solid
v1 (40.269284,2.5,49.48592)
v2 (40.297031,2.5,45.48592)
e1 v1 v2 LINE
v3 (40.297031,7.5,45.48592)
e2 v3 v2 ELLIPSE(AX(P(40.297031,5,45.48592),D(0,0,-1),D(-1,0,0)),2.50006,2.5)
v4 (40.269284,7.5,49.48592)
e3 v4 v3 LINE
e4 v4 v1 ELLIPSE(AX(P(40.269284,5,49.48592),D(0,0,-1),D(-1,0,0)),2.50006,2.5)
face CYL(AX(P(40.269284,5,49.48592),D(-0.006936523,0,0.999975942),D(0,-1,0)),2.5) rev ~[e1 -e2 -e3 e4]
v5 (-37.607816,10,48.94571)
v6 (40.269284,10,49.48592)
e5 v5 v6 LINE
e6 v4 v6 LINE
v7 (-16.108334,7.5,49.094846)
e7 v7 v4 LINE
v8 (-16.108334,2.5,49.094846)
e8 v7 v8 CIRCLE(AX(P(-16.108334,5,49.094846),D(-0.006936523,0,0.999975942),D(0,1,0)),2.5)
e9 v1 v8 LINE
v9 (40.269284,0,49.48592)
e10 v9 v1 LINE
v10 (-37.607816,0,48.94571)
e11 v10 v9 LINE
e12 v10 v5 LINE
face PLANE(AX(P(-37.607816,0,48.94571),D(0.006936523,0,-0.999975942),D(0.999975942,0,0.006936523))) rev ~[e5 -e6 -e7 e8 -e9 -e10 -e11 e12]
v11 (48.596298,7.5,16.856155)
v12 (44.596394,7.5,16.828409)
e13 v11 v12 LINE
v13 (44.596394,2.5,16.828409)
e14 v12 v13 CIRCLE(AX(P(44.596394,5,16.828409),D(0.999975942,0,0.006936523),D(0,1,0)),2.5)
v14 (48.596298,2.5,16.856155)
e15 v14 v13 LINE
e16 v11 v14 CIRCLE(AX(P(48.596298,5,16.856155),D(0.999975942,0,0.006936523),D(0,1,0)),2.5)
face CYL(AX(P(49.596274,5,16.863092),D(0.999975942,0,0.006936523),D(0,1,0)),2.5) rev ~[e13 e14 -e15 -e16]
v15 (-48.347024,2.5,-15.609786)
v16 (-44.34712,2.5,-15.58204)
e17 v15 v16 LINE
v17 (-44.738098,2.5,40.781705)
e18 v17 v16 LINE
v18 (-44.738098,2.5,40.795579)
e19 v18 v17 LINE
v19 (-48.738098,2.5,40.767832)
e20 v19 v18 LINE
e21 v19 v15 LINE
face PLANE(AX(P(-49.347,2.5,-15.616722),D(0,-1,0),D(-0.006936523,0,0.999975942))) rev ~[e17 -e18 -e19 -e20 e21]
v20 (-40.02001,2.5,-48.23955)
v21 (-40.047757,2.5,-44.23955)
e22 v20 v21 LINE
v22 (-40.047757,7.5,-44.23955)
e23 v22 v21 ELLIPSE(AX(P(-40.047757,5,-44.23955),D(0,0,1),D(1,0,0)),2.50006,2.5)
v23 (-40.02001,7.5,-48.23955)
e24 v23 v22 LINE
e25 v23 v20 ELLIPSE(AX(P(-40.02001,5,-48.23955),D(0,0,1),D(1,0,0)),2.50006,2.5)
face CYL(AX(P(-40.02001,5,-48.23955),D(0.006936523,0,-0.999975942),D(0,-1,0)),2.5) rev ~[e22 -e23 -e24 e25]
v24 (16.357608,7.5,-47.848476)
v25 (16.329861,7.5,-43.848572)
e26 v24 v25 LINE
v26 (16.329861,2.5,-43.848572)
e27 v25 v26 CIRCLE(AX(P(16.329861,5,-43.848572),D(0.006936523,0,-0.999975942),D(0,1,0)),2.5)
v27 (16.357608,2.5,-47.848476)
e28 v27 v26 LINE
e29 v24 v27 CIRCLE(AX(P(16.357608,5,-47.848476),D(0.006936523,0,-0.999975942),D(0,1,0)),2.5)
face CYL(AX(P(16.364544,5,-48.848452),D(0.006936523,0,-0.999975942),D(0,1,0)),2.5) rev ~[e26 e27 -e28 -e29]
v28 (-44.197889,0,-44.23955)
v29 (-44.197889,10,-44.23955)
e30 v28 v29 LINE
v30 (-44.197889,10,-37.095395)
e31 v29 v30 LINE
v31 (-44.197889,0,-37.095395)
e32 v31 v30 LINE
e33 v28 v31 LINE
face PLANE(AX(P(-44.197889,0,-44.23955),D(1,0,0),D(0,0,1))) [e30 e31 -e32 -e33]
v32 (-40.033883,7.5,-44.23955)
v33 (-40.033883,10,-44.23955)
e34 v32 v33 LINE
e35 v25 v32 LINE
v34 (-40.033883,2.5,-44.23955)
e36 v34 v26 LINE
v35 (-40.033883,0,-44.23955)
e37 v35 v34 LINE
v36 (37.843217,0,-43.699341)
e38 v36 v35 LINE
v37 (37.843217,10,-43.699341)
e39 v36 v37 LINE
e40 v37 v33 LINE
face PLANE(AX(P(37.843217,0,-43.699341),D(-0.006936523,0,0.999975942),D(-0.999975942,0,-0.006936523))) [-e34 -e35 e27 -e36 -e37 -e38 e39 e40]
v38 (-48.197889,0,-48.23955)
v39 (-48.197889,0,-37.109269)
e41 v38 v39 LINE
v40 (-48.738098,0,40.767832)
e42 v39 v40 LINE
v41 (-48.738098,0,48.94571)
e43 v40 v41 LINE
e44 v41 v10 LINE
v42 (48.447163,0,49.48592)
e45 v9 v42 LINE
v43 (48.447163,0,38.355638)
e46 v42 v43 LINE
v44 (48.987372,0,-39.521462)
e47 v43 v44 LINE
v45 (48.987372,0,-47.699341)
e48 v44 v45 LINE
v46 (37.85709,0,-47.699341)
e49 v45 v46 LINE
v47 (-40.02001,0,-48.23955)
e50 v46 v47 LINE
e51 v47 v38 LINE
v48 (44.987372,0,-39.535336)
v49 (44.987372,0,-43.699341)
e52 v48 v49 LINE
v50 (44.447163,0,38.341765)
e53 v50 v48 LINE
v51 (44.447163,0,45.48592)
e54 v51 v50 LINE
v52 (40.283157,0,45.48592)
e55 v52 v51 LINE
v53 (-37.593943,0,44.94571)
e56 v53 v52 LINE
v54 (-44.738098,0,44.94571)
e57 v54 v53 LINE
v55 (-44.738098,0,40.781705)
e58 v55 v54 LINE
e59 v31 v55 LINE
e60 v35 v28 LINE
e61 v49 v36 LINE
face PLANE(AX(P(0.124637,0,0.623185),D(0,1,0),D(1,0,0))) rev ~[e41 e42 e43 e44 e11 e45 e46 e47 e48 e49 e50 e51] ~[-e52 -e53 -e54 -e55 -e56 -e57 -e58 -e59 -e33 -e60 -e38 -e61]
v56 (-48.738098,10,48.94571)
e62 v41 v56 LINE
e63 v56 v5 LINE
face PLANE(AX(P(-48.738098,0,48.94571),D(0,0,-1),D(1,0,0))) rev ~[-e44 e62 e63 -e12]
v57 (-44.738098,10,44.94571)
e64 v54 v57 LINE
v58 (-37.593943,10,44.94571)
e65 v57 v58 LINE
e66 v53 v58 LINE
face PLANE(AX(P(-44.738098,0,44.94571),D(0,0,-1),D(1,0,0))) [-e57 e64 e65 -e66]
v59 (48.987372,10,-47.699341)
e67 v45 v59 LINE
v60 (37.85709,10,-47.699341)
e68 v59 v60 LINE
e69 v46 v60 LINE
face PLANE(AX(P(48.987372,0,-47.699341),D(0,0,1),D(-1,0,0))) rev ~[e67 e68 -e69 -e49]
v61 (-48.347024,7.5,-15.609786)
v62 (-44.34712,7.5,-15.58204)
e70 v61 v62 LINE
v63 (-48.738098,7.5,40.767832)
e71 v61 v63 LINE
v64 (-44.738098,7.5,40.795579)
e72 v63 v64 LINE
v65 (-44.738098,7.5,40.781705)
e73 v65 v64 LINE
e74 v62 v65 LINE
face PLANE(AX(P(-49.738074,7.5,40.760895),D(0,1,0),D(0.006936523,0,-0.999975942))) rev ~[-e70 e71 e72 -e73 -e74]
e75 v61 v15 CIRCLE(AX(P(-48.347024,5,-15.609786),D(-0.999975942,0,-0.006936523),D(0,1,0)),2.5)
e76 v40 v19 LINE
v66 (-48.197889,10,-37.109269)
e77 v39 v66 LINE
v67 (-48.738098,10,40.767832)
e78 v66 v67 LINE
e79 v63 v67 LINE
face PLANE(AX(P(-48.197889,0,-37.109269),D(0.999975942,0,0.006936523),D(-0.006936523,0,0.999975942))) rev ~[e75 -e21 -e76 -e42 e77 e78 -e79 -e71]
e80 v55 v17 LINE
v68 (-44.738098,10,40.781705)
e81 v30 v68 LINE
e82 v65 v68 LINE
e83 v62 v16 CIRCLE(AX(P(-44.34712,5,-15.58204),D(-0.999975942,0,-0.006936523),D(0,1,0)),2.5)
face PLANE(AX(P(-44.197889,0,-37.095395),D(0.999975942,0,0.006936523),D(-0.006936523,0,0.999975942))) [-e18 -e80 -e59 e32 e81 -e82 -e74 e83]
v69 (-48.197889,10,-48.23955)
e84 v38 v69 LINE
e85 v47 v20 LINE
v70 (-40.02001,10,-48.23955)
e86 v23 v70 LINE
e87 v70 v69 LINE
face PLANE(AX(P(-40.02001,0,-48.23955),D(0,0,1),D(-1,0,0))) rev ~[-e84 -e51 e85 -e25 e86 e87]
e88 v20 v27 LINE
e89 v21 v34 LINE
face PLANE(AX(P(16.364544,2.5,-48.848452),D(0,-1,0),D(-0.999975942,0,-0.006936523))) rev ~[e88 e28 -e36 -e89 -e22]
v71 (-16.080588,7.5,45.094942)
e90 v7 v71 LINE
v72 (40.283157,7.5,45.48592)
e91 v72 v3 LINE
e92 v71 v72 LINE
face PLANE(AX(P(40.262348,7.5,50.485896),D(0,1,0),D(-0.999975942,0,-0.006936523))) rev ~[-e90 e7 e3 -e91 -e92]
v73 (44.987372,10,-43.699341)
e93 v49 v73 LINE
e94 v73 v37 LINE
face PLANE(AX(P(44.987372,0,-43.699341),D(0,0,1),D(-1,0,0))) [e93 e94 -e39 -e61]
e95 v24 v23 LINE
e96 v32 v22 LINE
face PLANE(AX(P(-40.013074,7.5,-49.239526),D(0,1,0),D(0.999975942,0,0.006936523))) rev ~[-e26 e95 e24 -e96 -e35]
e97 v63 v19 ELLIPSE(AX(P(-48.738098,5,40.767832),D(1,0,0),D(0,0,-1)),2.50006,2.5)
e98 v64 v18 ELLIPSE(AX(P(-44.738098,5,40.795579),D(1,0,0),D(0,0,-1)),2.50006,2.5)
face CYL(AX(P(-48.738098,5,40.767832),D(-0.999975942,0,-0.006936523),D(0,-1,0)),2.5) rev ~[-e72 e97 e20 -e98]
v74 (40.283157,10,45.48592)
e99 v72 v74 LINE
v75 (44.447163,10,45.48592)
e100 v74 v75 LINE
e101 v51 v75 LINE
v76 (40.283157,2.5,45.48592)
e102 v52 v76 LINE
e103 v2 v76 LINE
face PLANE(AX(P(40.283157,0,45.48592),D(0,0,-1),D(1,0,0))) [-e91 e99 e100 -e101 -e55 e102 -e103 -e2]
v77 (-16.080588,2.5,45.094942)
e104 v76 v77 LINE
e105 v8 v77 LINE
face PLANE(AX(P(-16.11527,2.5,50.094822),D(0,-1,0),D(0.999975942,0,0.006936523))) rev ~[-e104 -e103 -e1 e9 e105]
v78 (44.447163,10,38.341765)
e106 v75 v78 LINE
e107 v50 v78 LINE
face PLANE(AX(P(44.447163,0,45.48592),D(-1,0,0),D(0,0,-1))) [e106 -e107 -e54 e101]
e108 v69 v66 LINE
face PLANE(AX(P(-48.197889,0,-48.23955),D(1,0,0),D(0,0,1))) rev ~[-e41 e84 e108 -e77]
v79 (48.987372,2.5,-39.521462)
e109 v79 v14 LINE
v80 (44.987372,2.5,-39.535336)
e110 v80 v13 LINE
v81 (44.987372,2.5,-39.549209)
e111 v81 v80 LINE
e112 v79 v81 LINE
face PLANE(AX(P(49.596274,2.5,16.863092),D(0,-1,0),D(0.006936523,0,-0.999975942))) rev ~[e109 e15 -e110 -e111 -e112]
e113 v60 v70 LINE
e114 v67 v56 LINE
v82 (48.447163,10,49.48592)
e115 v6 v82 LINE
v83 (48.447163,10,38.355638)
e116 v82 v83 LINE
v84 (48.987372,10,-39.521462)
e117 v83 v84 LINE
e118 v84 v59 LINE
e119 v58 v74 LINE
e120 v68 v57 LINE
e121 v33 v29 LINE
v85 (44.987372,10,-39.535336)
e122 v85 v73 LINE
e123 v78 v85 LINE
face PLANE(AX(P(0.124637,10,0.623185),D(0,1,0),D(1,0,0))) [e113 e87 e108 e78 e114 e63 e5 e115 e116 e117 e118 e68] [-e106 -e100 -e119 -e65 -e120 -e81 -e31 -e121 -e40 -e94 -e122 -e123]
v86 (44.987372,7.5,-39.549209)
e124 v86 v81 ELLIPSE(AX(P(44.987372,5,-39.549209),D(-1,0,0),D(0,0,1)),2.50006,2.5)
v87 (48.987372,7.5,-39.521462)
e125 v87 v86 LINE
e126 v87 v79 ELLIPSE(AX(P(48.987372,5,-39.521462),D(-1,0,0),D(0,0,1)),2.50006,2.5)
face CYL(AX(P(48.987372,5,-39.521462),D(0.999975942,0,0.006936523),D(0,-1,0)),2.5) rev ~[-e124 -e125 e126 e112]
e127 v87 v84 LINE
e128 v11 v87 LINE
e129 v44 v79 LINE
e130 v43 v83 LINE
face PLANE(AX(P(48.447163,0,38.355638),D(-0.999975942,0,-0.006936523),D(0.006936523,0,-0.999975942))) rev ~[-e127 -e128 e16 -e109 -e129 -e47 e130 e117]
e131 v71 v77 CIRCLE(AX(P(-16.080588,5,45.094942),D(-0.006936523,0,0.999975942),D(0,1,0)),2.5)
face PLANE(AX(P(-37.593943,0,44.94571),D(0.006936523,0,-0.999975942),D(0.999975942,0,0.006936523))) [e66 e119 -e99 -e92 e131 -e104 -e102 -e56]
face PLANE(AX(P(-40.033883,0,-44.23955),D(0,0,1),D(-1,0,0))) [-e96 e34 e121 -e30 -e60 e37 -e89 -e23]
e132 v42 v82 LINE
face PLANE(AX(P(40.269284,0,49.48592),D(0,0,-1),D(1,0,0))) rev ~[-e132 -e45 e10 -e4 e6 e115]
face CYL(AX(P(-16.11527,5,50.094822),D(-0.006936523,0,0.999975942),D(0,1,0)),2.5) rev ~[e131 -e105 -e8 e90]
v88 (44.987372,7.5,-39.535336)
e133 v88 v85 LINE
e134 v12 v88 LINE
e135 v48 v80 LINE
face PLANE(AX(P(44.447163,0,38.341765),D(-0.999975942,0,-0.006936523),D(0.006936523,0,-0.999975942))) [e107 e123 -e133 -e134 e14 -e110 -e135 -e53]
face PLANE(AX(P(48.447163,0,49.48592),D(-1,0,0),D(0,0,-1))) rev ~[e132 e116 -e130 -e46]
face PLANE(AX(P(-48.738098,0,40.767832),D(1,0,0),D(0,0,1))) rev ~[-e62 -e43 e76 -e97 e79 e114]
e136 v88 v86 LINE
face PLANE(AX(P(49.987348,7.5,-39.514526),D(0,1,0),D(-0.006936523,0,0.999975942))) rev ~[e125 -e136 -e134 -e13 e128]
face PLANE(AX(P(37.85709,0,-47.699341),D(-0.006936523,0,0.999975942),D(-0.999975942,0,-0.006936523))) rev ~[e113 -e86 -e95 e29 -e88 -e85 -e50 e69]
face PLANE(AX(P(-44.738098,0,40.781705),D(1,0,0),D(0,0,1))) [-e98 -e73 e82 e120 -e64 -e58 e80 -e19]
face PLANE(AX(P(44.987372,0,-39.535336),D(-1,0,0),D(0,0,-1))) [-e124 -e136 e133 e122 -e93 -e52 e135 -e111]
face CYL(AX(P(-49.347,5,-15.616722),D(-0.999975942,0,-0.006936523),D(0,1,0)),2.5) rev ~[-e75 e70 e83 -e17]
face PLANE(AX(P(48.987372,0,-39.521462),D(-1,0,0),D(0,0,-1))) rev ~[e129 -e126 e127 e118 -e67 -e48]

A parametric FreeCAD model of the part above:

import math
import FreeCAD as App
import Part
import Sketcher

doc = App.newDocument("Part")
params = doc.addObject("Spreadsheet::Sheet", "Params")
for row, (alias, value) in enumerate([
    ("pad1_length", "10 mm"),
    ("sketch2_diameter", "5 mm"),
    ("pocket1_length", "10 mm"),
    ("sketch3_radius", "2.5 mm"),
    ("pocket2_length", "6 mm"),
], start=1):
    params.set(f"A{row}", alias)
    params.set(f"B{row}", "=" + value)
    params.setAlias(f"B{row}", alias)

body = doc.addObject("PartDesign::Body", "Body")

# Sketch on XZ plane
sketch1 = body.newObject("Sketcher::SketchObject", "Sketch")
sketch1.AttachmentSupport = (doc.getObject("XZ_Plane"), [""])
sketch1.MapMode = "FlatFace"
sketch1.addGeometry(Part.LineSegment(App.Vector(-48.2, -37.1, 0), App.Vector(-48.7, 40.8, 0)), False)
sketch1.addGeometry(Part.LineSegment(App.Vector(-48.7, 40.8, 0), App.Vector(-48.7, 48.9, 0)), False)
sketch1.addGeometry(Part.LineSegment(App.Vector(-48.7, 48.9, 0), App.Vector(-37.6, 48.9, 0)), False)
sketch1.addGeometry(Part.LineSegment(App.Vector(-37.6, 48.9, 0), App.Vector(40.3, 49.5, 0)), False)
sketch1.addGeometry(Part.LineSegment(App.Vector(40.3, 49.5, 0), App.Vector(48.4, 49.5, 0)), False)
sketch1.addGeometry(Part.LineSegment(App.Vector(48.4, 49.5, 0), App.Vector(48.4, 38.4, 0)), False)
sketch1.addGeometry(Part.LineSegment(App.Vector(48.4, 38.4, 0), App.Vector(49, -39.5, 0)), False)
sketch1.addGeometry(Part.LineSegment(App.Vector(49, -39.5, 0), App.Vector(49, -47.7, 0)), False)
sketch1.addGeometry(Part.LineSegment(App.Vector(49, -47.7, 0), App.Vector(37.9, -47.7, 0)), False)
sketch1.addGeometry(Part.LineSegment(App.Vector(37.9, -47.7, 0), App.Vector(-40, -48.2, 0)), False)
sketch1.addGeometry(Part.LineSegment(App.Vector(-40, -48.2, 0), App.Vector(-48.2, -48.2, 0)), False)
sketch1.addGeometry(Part.LineSegment(App.Vector(-48.2, -48.2, 0), App.Vector(-48.2, -37.1, 0)), False)
sketch1.addGeometry(Part.LineSegment(App.Vector(-44.2, -44.2, 0), App.Vector(-40, -44.2, 0)), False)
sketch1.addGeometry(Part.LineSegment(App.Vector(-40, -44.2, 0), App.Vector(37.8, -43.7, 0)), False)
sketch1.addGeometry(Part.LineSegment(App.Vector(37.8, -43.7, 0), App.Vector(45, -43.7, 0)), False)
sketch1.addGeometry(Part.LineSegment(App.Vector(45, -43.7, 0), App.Vector(45, -39.5, 0)), False)
sketch1.addGeometry(Part.LineSegment(App.Vector(45, -39.5, 0), App.Vector(44.4, 38.3, 0)), False)
sketch1.addGeometry(Part.LineSegment(App.Vector(44.4, 38.3, 0), App.Vector(44.4, 45.5, 0)), False)
sketch1.addGeometry(Part.LineSegment(App.Vector(44.4, 45.5, 0), App.Vector(40.3, 45.5, 0)), False)
sketch1.addGeometry(Part.LineSegment(App.Vector(40.3, 45.5, 0), App.Vector(-37.6, 44.9, 0)), False)
sketch1.addGeometry(Part.LineSegment(App.Vector(-37.6, 44.9, 0), App.Vector(-44.7, 44.9, 0)), False)
sketch1.addGeometry(Part.LineSegment(App.Vector(-44.7, 44.9, 0), App.Vector(-44.7, 40.8, 0)), False)
sketch1.addGeometry(Part.LineSegment(App.Vector(-44.7, 40.8, 0), App.Vector(-44.2, -37.1, 0)), False)
sketch1.addGeometry(Part.LineSegment(App.Vector(-44.2, -37.1, 0), App.Vector(-44.2, -44.2, 0)), False)
sketch1.addConstraint(Sketcher.Constraint("Coincident", 0, 2, 1, 1))
sketch1.addConstraint(Sketcher.Constraint("Coincident", 1, 2, 2, 1))
sketch1.addConstraint(Sketcher.Constraint("Coincident", 2, 2, 3, 1))
sketch1.addConstraint(Sketcher.Constraint("Coincident", 3, 2, 4, 1))
sketch1.addConstraint(Sketcher.Constraint("Coincident", 4, 2, 5, 1))
sketch1.addConstraint(Sketcher.Constraint("Coincident", 5, 2, 6, 1))
sketch1.addConstraint(Sketcher.Constraint("Coincident", 6, 2, 7, 1))
sketch1.addConstraint(Sketcher.Constraint("Coincident", 7, 2, 8, 1))
sketch1.addConstraint(Sketcher.Constraint("Coincident", 8, 2, 9, 1))
sketch1.addConstraint(Sketcher.Constraint("Coincident", 9, 2, 10, 1))
sketch1.addConstraint(Sketcher.Constraint("Coincident", 10, 2, 11, 1))
sketch1.addConstraint(Sketcher.Constraint("Coincident", 11, 2, 0, 1))
sketch1.addConstraint(Sketcher.Constraint("Coincident", 12, 2, 13, 1))
sketch1.addConstraint(Sketcher.Constraint("Coincident", 13, 2, 14, 1))
sketch1.addConstraint(Sketcher.Constraint("Coincident", 14, 2, 15, 1))
sketch1.addConstraint(Sketcher.Constraint("Coincident", 15, 2, 16, 1))
sketch1.addConstraint(Sketcher.Constraint("Coincident", 16, 2, 17, 1))
sketch1.addConstraint(Sketcher.Constraint("Coincident", 17, 2, 18, 1))
sketch1.addConstraint(Sketcher.Constraint("Coincident", 18, 2, 19, 1))
sketch1.addConstraint(Sketcher.Constraint("Coincident", 19, 2, 20, 1))
sketch1.addConstraint(Sketcher.Constraint("Coincident", 20, 2, 21, 1))
sketch1.addConstraint(Sketcher.Constraint("Coincident", 21, 2, 22, 1))
sketch1.addConstraint(Sketcher.Constraint("Coincident", 22, 2, 23, 1))
sketch1.addConstraint(Sketcher.Constraint("Coincident", 23, 2, 12, 1))
sketch1.addConstraint(Sketcher.Constraint("Vertical", 1))
sketch1.addConstraint(Sketcher.Constraint("Horizontal", 2))
sketch1.addConstraint(Sketcher.Constraint("Horizontal", 4))
sketch1.addConstraint(Sketcher.Constraint("Vertical", 5))
sketch1.addConstraint(Sketcher.Constraint("Vertical", 7))
sketch1.addConstraint(Sketcher.Constraint("Horizontal", 8))
sketch1.addConstraint(Sketcher.Constraint("Horizontal", 10))
sketch1.addConstraint(Sketcher.Constraint("Vertical", 11))
sketch1.addConstraint(Sketcher.Constraint("Horizontal", 12))
sketch1.addConstraint(Sketcher.Constraint("Horizontal", 14))
sketch1.addConstraint(Sketcher.Constraint("Vertical", 15))
sketch1.addConstraint(Sketcher.Constraint("Vertical", 17))
sketch1.addConstraint(Sketcher.Constraint("Horizontal", 18))
sketch1.addConstraint(Sketcher.Constraint("Horizontal", 20))
sketch1.addConstraint(Sketcher.Constraint("Vertical", 21))
sketch1.addConstraint(Sketcher.Constraint("Vertical", 23))
sketch1.addConstraint(Sketcher.Constraint("Perpendicular", 0, 3))
sketch1.addConstraint(Sketcher.Constraint("Perpendicular", 3, 6))
sketch1.addConstraint(Sketcher.Constraint("Perpendicular", 6, 9))
sketch1.addConstraint(Sketcher.Constraint("Parallel", 9, 13))
sketch1.addConstraint(Sketcher.Constraint("Perpendicular", 13, 16))
sketch1.addConstraint(Sketcher.Constraint("Perpendicular", 16, 19))
sketch1.addConstraint(Sketcher.Constraint("Perpendicular", 19, 22))
sketch1.addConstraint(Sketcher.Constraint("Equal", 2, 8))
sketch1.addConstraint(Sketcher.Constraint("Equal", 4, 10))
sketch1.addConstraint(Sketcher.Constraint("Equal", 12, 18))
sketch1.addConstraint(Sketcher.Constraint("Equal", 14, 20))
sketch1.addConstraint(Sketcher.Constraint("Equal", 10, 1))
sketch1.addConstraint(Sketcher.Constraint("Equal", 8, 5))
sketch1.addConstraint(Sketcher.Constraint("Equal", 1, 7))
sketch1.addConstraint(Sketcher.Constraint("Equal", 5, 11))
sketch1.addConstraint(Sketcher.Constraint("Equal", 18, 15))
sketch1.addConstraint(Sketcher.Constraint("Equal", 20, 17))
sketch1.addConstraint(Sketcher.Constraint("Equal", 15, 21))
sketch1.addConstraint(Sketcher.Constraint("Equal", 17, 23))
sketch1.addConstraint(Sketcher.Constraint("Equal", 0, 3))
sketch1.addConstraint(Sketcher.Constraint("Equal", 9, 13))
sketch1.addConstraint(Sketcher.Constraint("Equal", 13, 16))
sketch1.addConstraint(Sketcher.Constraint("DistanceY", 9, 2, 12, 2, 4.0))
sketch1.addConstraint(Sketcher.Constraint("DistanceX", 14, 2, 7, 2, 4.0))
sketch1.addConstraint(Sketcher.Constraint("DistanceY", 17, 2, 4, 2, 4.0))
sketch1.addConstraint(Sketcher.Constraint("DistanceX", 2, 1, 2, 2, 11.130282))
sketch1.addConstraint(Sketcher.Constraint("DistanceX", 4, 1, 4, 2, 8.177879))
sketch1.addConstraint(Sketcher.Constraint("DistanceX", 0, 2, -1, 1, 48.738098))
sketch1.addConstraint(Sketcher.Constraint("DistanceX", 2, 2, 3, 2, 77.877101))
sketch1.addConstraint(Sketcher.Constraint("DistanceX", 12, 1, 12, 2, 4.164005))
sketch1.addConstraint(Sketcher.Constraint("DistanceY", -1, 1, 0, 2, 40.767832))
sketch1.addConstraint(Sketcher.Constraint("DistanceY", -1, 1, 3, 2, 49.48592))
pad1 = body.newObject("PartDesign::Pad", "Pad")
pad1.Profile = sketch1
pad1.setExpression("Length", "Params.pad1_length")
pad1.Reversed = True

# Sketch on an angled plane
sketch2 = body.newObject("Sketcher::SketchObject", "Sketch001")
sketch2.Placement = App.Placement(App.Vector(0.332681, 0, -47.959636), App.Rotation(App.Vector(-0.999975942, 0, -0.006936523), App.Vector(0, 1, 0), App.Vector(0.006936523, 0, -0.999975942), "ZXY"))
sketch2.addGeometry(Part.Circle(App.Vector(40.4, 5, 0), App.Vector(0, 0, 1), 2.5), False)
sketch2.addConstraint(Sketcher.Constraint("Diameter", 0, 5.0))
sketch2.addConstraint(Sketcher.Constraint("DistanceY", -1, 1, 0, 3, 5.0))
sketch2.addConstraint(Sketcher.Constraint("DistanceX", -1, 1, 0, 3, 40.353662))
sketch2.setExpression("Constraints[0]", "Params.sketch2_diameter")
pocket1 = body.newObject("PartDesign::Pocket", "Pocket")
pocket1.Profile = sketch2
pocket1.setExpression("Length", "Params.pocket1_length")
doc.recompute()

datumline = body.newObject("PartDesign::Line", "DatumLine")
datumline.Placement = App.Placement(App.Vector(0.124637, 0, 0.623185), App.Rotation(App.Vector(0, 0, 1), App.Vector(0, -1, 0)))
polarpattern = body.newObject("PartDesign::PolarPattern", "PolarPattern")
polarpattern.Originals = [pocket1]
polarpattern.Axis = (datumline, [""])
polarpattern.Angle = 360
polarpattern.Occurrences = 4
body.Tip = polarpattern

# Sketch on an angled plane
sketch3 = body.newObject("Sketcher::SketchObject", "Sketch002")
sketch3.Placement = App.Placement(App.Vector(-0.348251, 0, 50.204193), App.Rotation(App.Vector(0.999975942, 0, 0.006936523), App.Vector(0, 1, 0), App.Vector(-0.006936523, 0, 0.999975942), "ZXY"))
sketch3.addGeometry(Part.LineSegment(App.Vector(40.6, 7.5, 0), App.Vector(-15.8, 7.5, 0)), False)
sketch3.addGeometry(Part.ArcOfCircle(Part.Circle(App.Vector(-15.8, 5, 0), App.Vector(0, 0, 1), 2.5), math.radians(90), math.radians(270)), False)
sketch3.addGeometry(Part.LineSegment(App.Vector(-15.8, 2.5, 0), App.Vector(40.6, 2.5, 0)), False)
sketch3.addGeometry(Part.ArcOfCircle(Part.Circle(App.Vector(40.6, 5, 0), App.Vector(0, 0, 1), 2.5), math.radians(-90), math.radians(90)), False)
sketch3.addConstraint(Sketcher.Constraint("Tangent", 0, 2, 1, 1))
sketch3.addConstraint(Sketcher.Constraint("Tangent", 1, 2, 2, 1))
sketch3.addConstraint(Sketcher.Constraint("Tangent", 2, 2, 3, 1))
sketch3.addConstraint(Sketcher.Constraint("Tangent", 3, 2, 0, 1))
sketch3.addConstraint(Sketcher.Constraint("Horizontal", 0))
sketch3.addConstraint(Sketcher.Constraint("Horizontal", 2))
sketch3.addConstraint(Sketcher.Constraint("Radius", 1, 2.5))
sketch3.addConstraint(Sketcher.Constraint("DistanceY", -1, 1, 1, 3, 5.0))
sketch3.addConstraint(Sketcher.Constraint("DistanceX", 1, 3, -1, 1, 15.767399))
sketch3.addConstraint(Sketcher.Constraint("DistanceX", 0, 2, 0, 1, 56.378974))
sketch3.setExpression("Constraints[6]", "Params.sketch3_radius")
pocket2 = body.newObject("PartDesign::Pocket", "Pocket001")
pocket2.Profile = sketch3
pocket2.setExpression("Length", "Params.pocket2_length")
doc.recompute()

datumline2 = body.newObject("PartDesign::Line", "DatumLine001")
datumline2.Placement = App.Placement(App.Vector(0.124637, 0, 0.623185), App.Rotation(App.Vector(0, 0, 1), App.Vector(0, -1, 0)))
polarpattern2 = body.newObject("PartDesign::PolarPattern", "PolarPattern001")
polarpattern2.Originals = [pocket2]
polarpattern2.Axis = (datumline2, [""])
polarpattern2.Angle = 360
polarpattern2.Occurrences = 4
body.Tip = polarpattern2

doc.recompute()
